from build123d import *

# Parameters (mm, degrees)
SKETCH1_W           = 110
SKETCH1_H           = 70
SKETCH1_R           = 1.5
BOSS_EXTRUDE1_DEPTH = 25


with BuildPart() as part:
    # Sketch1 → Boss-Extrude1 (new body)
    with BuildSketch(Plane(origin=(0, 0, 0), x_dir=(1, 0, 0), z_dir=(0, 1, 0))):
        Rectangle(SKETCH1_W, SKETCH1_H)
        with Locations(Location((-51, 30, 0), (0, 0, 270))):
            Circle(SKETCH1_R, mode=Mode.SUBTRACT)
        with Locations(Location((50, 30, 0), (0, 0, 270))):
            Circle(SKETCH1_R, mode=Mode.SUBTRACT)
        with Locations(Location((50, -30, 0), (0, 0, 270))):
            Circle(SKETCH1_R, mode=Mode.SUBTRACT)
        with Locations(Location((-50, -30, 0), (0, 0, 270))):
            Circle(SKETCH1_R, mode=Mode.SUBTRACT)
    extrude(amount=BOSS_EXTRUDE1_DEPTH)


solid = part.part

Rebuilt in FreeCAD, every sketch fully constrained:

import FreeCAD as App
import Part
import Sketcher
from FreeCAD import Vector
Q = App.Units.Quantity

doc = App.newDocument("Part")
params = doc.addObject("Spreadsheet::Sheet", "Params")
for row, (alias, value) in enumerate([
    ("sketch1_diameter", "3 mm"),
    ("sketch1_width", "110 mm"),
    ("sketch1_height", "70 mm"),
    ("pad1_length", "25 mm"),
], start=1):
    params.set(f"A{row}", alias)
    params.set(f"B{row}", "=" + value)
    params.setAlias(f"B{row}", alias)

body = doc.addObject("PartDesign::Body", "Body")

# Sketch on XZ plane
sketch1 = body.newObject("Sketcher::SketchObject", "Sketch")
sketch1.AttachmentSupport = (doc.getObject("XZ_Plane"), [""])
sketch1.MapMode = "FlatFace"
sketch1.addGeometry(Part.LineSegment(Vector(-55, -35, 0), Vector(-55, 35, 0)), False)
sketch1.addGeometry(Part.LineSegment(Vector(-55, 35, 0), Vector(55, 35, 0)), False)
sketch1.addGeometry(Part.LineSegment(Vector(55, 35, 0), Vector(55, -35, 0)), False)
sketch1.addGeometry(Part.LineSegment(Vector(55, -35, 0), Vector(-55, -35, 0)), False)
sketch1.addGeometry(Part.Circle(Vector(-50, 30, 0), Vector(0, 0, 1), 1.5), False)
sketch1.addGeometry(Part.Circle(Vector(50, 30, 0), Vector(0, 0, 1), 1.5), False)
sketch1.addGeometry(Part.Circle(Vector(-51, -30, 0), Vector(0, 0, 1), 1.5), False)
sketch1.addGeometry(Part.Circle(Vector(50, -30, 0), Vector(0, 0, 1), 1.5), False)
sketch1.addConstraint(Sketcher.Constraint("Coincident", 0, 2, 1, 1))
sketch1.addConstraint(Sketcher.Constraint("Coincident", 1, 2, 2, 1))
sketch1.addConstraint(Sketcher.Constraint("Coincident", 2, 2, 3, 1))
sketch1.addConstraint(Sketcher.Constraint("Coincident", 3, 2, 0, 1))
sketch1.addConstraint(Sketcher.Constraint("Vertical", 0))
sketch1.addConstraint(Sketcher.Constraint("Horizontal", 1))
sketch1.addConstraint(Sketcher.Constraint("Vertical", 2))
sketch1.addConstraint(Sketcher.Constraint("Horizontal", 3))
sketch1.addConstraint(Sketcher.Constraint("Equal", 4, 5))
sketch1.addConstraint(Sketcher.Constraint("Equal", 5, 6))
sketch1.addConstraint(Sketcher.Constraint("Equal", 6, 7))
sketch1.addConstraint(Sketcher.Constraint("Symmetric", 4, 3, 7, 3, -1, 1))
sketch1.addConstraint(Sketcher.Constraint("Symmetric", 0, 2, 2, 2, -1, 1))
sketch1.addConstraint(Sketcher.Constraint("Symmetric", 4, 3, 5, 3, -2))
sketch1.addConstraint(Sketcher.Constraint("Horizontal", 6, 3, 7, 3))
sketch1.addConstraint(Sketcher.Constraint("Diameter", 4, Q("3 mm")))
sketch1.addConstraint(Sketcher.Constraint("DistanceX", 1, 1, 1, 2, Q("110 mm")))
sketch1.addConstraint(Sketcher.Constraint("DistanceY", 0, 1, 0, 2, Q("70 mm")))
sketch1.addConstraint(Sketcher.Constraint("DistanceX", 4, 3, -1, 1, Q("50 mm")))
sketch1.addConstraint(Sketcher.Constraint("DistanceY", -1, 1, 4, 3, Q("30 mm")))
sketch1.addConstraint(Sketcher.Constraint("DistanceX", 6, 3, -1, 1, Q("51 mm")))
sketch1.setExpression("Constraints[15]", "Params.sketch1_diameter")
sketch1.setExpression("Constraints[16]", "Params.sketch1_width")
sketch1.setExpression("Constraints[17]", "Params.sketch1_height")
pad1 = body.newObject("PartDesign::Pad", "Pad")
pad1.Profile = sketch1
pad1.setExpression("Length", "Params.pad1_length")
pad1.Reversed = True

doc.recompute()
